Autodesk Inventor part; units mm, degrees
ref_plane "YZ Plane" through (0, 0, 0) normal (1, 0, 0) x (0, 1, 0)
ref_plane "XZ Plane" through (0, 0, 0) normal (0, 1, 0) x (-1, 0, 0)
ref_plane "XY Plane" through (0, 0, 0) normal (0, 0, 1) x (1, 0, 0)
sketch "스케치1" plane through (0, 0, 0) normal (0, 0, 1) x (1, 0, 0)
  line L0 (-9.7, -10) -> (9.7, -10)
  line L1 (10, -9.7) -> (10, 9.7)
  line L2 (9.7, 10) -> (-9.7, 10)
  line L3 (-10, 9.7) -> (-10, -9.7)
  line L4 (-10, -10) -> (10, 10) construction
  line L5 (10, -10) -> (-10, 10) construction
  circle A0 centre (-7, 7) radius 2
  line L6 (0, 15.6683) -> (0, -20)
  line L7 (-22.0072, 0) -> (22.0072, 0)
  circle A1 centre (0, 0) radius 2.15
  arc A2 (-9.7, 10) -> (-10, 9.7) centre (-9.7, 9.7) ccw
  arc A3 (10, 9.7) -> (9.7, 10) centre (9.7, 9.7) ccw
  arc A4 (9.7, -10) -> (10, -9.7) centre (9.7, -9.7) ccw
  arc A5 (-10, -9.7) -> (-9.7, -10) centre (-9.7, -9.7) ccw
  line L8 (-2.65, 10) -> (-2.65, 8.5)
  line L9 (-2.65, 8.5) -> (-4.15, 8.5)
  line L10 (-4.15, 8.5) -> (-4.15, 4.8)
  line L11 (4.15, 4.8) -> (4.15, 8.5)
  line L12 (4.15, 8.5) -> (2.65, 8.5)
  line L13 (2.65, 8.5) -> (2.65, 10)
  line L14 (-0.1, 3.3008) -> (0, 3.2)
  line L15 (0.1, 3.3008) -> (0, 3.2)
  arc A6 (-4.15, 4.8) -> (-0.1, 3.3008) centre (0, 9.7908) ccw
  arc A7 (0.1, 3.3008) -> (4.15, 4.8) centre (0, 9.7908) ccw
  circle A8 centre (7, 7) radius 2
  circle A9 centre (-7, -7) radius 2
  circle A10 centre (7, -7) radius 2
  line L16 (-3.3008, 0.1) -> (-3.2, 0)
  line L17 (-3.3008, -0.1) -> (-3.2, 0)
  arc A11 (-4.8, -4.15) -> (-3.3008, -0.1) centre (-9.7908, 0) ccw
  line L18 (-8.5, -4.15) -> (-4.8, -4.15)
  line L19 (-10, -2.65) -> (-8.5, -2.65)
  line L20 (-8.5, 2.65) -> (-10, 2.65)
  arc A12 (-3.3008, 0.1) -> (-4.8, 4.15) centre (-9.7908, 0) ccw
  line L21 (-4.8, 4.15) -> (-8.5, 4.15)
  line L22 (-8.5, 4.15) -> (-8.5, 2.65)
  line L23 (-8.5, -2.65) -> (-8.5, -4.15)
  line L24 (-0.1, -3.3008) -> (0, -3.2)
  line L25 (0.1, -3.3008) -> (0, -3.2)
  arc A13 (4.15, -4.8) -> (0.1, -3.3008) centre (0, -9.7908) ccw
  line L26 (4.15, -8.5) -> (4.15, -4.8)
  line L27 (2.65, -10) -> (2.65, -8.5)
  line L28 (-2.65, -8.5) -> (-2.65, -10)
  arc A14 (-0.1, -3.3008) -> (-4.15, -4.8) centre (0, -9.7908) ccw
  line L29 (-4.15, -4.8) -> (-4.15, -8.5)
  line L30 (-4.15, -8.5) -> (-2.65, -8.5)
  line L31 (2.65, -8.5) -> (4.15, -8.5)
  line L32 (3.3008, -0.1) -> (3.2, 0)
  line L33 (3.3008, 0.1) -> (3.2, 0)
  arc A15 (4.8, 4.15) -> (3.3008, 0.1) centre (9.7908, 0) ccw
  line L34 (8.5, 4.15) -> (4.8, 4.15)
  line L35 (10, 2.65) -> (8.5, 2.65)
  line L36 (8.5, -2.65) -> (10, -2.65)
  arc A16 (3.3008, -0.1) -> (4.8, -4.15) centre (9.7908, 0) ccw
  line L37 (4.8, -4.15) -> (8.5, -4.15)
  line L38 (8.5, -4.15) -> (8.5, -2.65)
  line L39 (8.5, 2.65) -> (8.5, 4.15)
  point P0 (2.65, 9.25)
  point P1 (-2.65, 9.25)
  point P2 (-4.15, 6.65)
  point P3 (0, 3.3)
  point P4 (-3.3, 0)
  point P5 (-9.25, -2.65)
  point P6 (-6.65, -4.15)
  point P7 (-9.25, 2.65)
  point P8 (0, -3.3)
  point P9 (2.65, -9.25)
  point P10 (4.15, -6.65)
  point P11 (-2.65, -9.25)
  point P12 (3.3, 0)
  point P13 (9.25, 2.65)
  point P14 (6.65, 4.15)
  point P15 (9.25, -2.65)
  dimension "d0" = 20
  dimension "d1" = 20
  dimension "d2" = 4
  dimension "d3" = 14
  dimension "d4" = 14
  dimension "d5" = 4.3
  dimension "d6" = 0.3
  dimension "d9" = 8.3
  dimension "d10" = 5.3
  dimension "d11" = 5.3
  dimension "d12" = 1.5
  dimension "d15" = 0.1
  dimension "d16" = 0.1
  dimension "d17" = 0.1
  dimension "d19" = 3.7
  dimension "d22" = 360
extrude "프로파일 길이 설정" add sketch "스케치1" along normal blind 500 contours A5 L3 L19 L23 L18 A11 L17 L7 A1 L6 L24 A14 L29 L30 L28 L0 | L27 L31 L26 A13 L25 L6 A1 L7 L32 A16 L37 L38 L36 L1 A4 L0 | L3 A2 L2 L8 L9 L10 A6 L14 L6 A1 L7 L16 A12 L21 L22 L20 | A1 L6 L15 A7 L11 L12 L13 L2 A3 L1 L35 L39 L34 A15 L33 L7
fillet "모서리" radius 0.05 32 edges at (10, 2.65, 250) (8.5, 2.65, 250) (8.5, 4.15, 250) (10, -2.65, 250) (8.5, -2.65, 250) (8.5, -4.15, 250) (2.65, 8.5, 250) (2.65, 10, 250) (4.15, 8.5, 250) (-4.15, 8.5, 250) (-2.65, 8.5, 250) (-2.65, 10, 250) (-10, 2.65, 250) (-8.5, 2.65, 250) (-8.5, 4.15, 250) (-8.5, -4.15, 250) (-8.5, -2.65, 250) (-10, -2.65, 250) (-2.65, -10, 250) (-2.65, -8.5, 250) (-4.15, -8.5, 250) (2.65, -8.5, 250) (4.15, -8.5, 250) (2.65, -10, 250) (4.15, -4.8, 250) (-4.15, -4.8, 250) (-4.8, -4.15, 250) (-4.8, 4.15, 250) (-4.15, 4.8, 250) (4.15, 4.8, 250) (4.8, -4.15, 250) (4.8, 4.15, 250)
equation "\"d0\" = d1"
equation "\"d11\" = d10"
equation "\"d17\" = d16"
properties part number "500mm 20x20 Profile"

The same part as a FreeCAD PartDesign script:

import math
import FreeCAD as App
import Part
import Sketcher

V = App.Vector


def edges_at(feature, points):
    """Names of the edges that pass closest to the given points."""
    edges = feature.Shape.Edges
    near = lambda p: min(range(len(edges)), key=lambda i: edges[i].distToShape(Part.Vertex(*p))[0])
    return sorted({f"Edge{near(p) + 1}" for p in points})

doc = App.newDocument("Part")
body = doc.addObject("PartDesign::Body", "Body")

# Sketch on XY plane
sketch1 = body.newObject("Sketcher::SketchObject", "Sketch")
sketch1.AttachmentSupport = (doc.getObject("XY_Plane"), [""])
sketch1.MapMode = "FlatFace"
sketch1.addGeometry(Part.ArcOfCircle(Part.Circle(V(-9.7, -9.7, 0), V(0, 0, 1), 0.3), math.radians(180), math.radians(270)), False)
sketch1.addGeometry(Part.LineSegment(V(-9.7, -10, 0), V(-2.65, -10, 0)), False)
sketch1.addGeometry(Part.LineSegment(V(-2.65, -10, 0), V(-2.65, -8.5, 0)), False)
sketch1.addGeometry(Part.LineSegment(V(-2.65, -8.5, 0), V(-4.15, -8.5, 0)), False)
sketch1.addGeometry(Part.LineSegment(V(-4.15, -8.5, 0), V(-4.15, -4.8, 0)), False)
sketch1.addGeometry(Part.ArcOfCircle(Part.Circle(V(0, -9.7908, 0), V(0, 0, 1), 6.490808), math.radians(90.882762), math.radians(129.74454)), False)
sketch1.addGeometry(Part.LineSegment(V(-0.1, -3.3008, 0), V(0, -3.2, 0)), False)
sketch1.addGeometry(Part.LineSegment(V(0, -3.2, 0), V(0.1, -3.3008, 0)), False)
sketch1.addGeometry(Part.ArcOfCircle(Part.Circle(V(0, -9.7908, 0), V(0, 0, 1), 6.49077), math.radians(50.25546), math.radians(89.117238)), False)
sketch1.addGeometry(Part.LineSegment(V(4.15, -4.8, 0), V(4.15, -8.5, 0)), False)
sketch1.addGeometry(Part.LineSegment(V(4.15, -8.5, 0), V(2.65, -8.5, 0)), False)
sketch1.addGeometry(Part.LineSegment(V(2.65, -8.5, 0), V(2.65, -10, 0)), False)
sketch1.addGeometry(Part.LineSegment(V(2.65, -10, 0), V(9.7, -10, 0)), False)
sketch1.addGeometry(Part.ArcOfCircle(Part.Circle(V(9.7, -9.7, 0), V(0, 0, 1), 0.3), math.radians(-90), math.radians(0)), False)
sketch1.addGeometry(Part.LineSegment(V(10, -9.7, 0), V(10, -2.65, 0)), False)
sketch1.addGeometry(Part.LineSegment(V(10, -2.65, 0), V(8.5, -2.65, 0)), False)
sketch1.addGeometry(Part.LineSegment(V(8.5, -2.65, 0), V(8.5, -4.15, 0)), False)
sketch1.addGeometry(Part.LineSegment(V(8.5, -4.15, 0), V(4.8, -4.15, 0)), False)
sketch1.addGeometry(Part.ArcOfCircle(Part.Circle(V(9.7908, 0, 0), V(0, 0, 1), 6.490808), math.radians(-179.117238), math.radians(-140.25546)), False)
sketch1.addGeometry(Part.LineSegment(V(3.3008, -0.1, 0), V(3.2, 0, 0)), False)
sketch1.addGeometry(Part.LineSegment(V(3.2, 0, 0), V(3.3008, 0.1, 0)), False)
sketch1.addGeometry(Part.ArcOfCircle(Part.Circle(V(9.7908, 0, 0), V(0, 0, 1), 6.49077), math.radians(140.25546), math.radians(179.117238)), False)
sketch1.addGeometry(Part.LineSegment(V(4.8, 4.15, 0), V(8.5, 4.15, 0)), False)
sketch1.addGeometry(Part.LineSegment(V(8.5, 4.15, 0), V(8.5, 2.65, 0)), False)
sketch1.addGeometry(Part.LineSegment(V(8.5, 2.65, 0), V(10, 2.65, 0)), False)
sketch1.addGeometry(Part.LineSegment(V(10, 2.65, 0), V(10, 9.7, 0)), False)
sketch1.addGeometry(Part.ArcOfCircle(Part.Circle(V(9.7, 9.7, 0), V(0, 0, 1), 0.3), math.radians(0), math.radians(90)), False)
sketch1.addGeometry(Part.LineSegment(V(9.7, 10, 0), V(2.65, 10, 0)), False)
sketch1.addGeometry(Part.LineSegment(V(2.65, 10, 0), V(2.65, 8.5, 0)), False)
sketch1.addGeometry(Part.LineSegment(V(2.65, 8.5, 0), V(4.15, 8.5, 0)), False)
sketch1.addGeometry(Part.LineSegment(V(4.15, 8.5, 0), V(4.15, 4.8, 0)), False)
sketch1.addGeometry(Part.ArcOfCircle(Part.Circle(V(0, 9.7908, 0), V(0, 0, 1), 6.490808), math.radians(-89.117238), math.radians(-50.25546)), False)
sketch1.addGeometry(Part.LineSegment(V(0.1, 3.3008, 0), V(0, 3.2, 0)), False)
sketch1.addGeometry(Part.LineSegment(V(0, 3.2, 0), V(-0.1, 3.3008, 0)), False)
sketch1.addGeometry(Part.ArcOfCircle(Part.Circle(V(0, 9.7908, 0), V(0, 0, 1), 6.49077), math.radians(-129.74454), math.radians(-90.882762)), False)
sketch1.addGeometry(Part.LineSegment(V(-4.15, 4.8, 0), V(-4.15, 8.5, 0)), False)
sketch1.addGeometry(Part.LineSegment(V(-4.15, 8.5, 0), V(-2.65, 8.5, 0)), False)
sketch1.addGeometry(Part.LineSegment(V(-2.65, 8.5, 0), V(-2.65, 10, 0)), False)
sketch1.addGeometry(Part.LineSegment(V(-2.65, 10, 0), V(-9.7, 10, 0)), False)
sketch1.addGeometry(Part.ArcOfCircle(Part.Circle(V(-9.7, 9.7, 0), V(0, 0, 1), 0.3), math.radians(90), math.radians(180)), False)
sketch1.addGeometry(Part.LineSegment(V(-10, 9.7, 0), V(-10, 2.65, 0)), False)
sketch1.addGeometry(Part.LineSegment(V(-10, 2.65, 0), V(-8.5, 2.65, 0)), False)
sketch1.addGeometry(Part.LineSegment(V(-8.5, 2.65, 0), V(-8.5, 4.15, 0)), False)
sketch1.addGeometry(Part.LineSegment(V(-8.5, 4.15, 0), V(-4.8, 4.15, 0)), False)
sketch1.addGeometry(Part.ArcOfCircle(Part.Circle(V(-9.7908, 0, 0), V(0, 0, 1), 6.490808), math.radians(0.882762), math.radians(39.74454)), False)
sketch1.addGeometry(Part.LineSegment(V(-3.3008, 0.1, 0), V(-3.2, 0, 0)), False)
sketch1.addGeometry(Part.LineSegment(V(-3.2, 0, 0), V(-3.3008, -0.1, 0)), False)
sketch1.addGeometry(Part.ArcOfCircle(Part.Circle(V(-9.7908, 0, 0), V(0, 0, 1), 6.49077), math.radians(-39.74454), math.radians(-0.882762)), False)
sketch1.addGeometry(Part.LineSegment(V(-4.8, -4.15, 0), V(-8.5, -4.15, 0)), False)
sketch1.addGeometry(Part.LineSegment(V(-8.5, -4.15, 0), V(-8.5, -2.65, 0)), False)
sketch1.addGeometry(Part.LineSegment(V(-8.5, -2.65, 0), V(-10, -2.65, 0)), False)
sketch1.addGeometry(Part.LineSegment(V(-10, -2.65, 0), V(-10, -9.7, 0)), False)
sketch1.addGeometry(Part.Circle(V(0, 0, 0), V(0, 0, 1), 2.15), False)
sketch1.addGeometry(Part.Circle(V(-7, -7, 0), V(0, 0, 1), 2), False)
sketch1.addGeometry(Part.Circle(V(-7, 7, 0), V(0, 0, 1), 2), False)
sketch1.addGeometry(Part.Circle(V(7, -7, 0), V(0, 0, 1), 2), False)
sketch1.addGeometry(Part.Circle(V(7, 7, 0), V(0, 0, 1), 2), False)
sketch1.addConstraint(Sketcher.Constraint("Tangent", 0, 2, 1, 1))
sketch1.addConstraint(Sketcher.Constraint("Coincident", 1, 2, 2, 1))
sketch1.addConstraint(Sketcher.Constraint("Coincident", 2, 2, 3, 1))
sketch1.addConstraint(Sketcher.Constraint("Coincident", 3, 2, 4, 1))
sketch1.addConstraint(Sketcher.Constraint("Coincident", 4, 2, 5, 2))
sketch1.addConstraint(Sketcher.Constraint("Coincident", 5, 1, 6, 1))
sketch1.addConstraint(Sketcher.Constraint("Coincident", 6, 2, 7, 1))
sketch1.addConstraint(Sketcher.Constraint("Coincident", 7, 2, 8, 2))
sketch1.addConstraint(Sketcher.Constraint("Coincident", 8, 1, 9, 1))
sketch1.addConstraint(Sketcher.Constraint("Coincident", 9, 2, 10, 1))
sketch1.addConstraint(Sketcher.Constraint("Coincident", 10, 2, 11, 1))
sketch1.addConstraint(Sketcher.Constraint("Coincident", 11, 2, 12, 1))
sketch1.addConstraint(Sketcher.Constraint("Tangent", 12, 2, 13, 1))
sketch1.addConstraint(Sketcher.Constraint("Tangent", 13, 2, 14, 1))
sketch1.addConstraint(Sketcher.Constraint("Coincident", 14, 2, 15, 1))
sketch1.addConstraint(Sketcher.Constraint("Coincident", 15, 2, 16, 1))
sketch1.addConstraint(Sketcher.Constraint("Coincident", 16, 2, 17, 1))
sketch1.addConstraint(Sketcher.Constraint("Coincident", 17, 2, 18, 2))
sketch1.addConstraint(Sketcher.Constraint("Coincident", 18, 1, 19, 1))
sketch1.addConstraint(Sketcher.Constraint("Coincident", 19, 2, 20, 1))
sketch1.addConstraint(Sketcher.Constraint("Coincident", 20, 2, 21, 2))
sketch1.addConstraint(Sketcher.Constraint("Coincident", 21, 1, 22, 1))
sketch1.addConstraint(Sketcher.Constraint("Coincident", 22, 2, 23, 1))
sketch1.addConstraint(Sketcher.Constraint("Coincident", 23, 2, 24, 1))
sketch1.addConstraint(Sketcher.Constraint("Coincident", 24, 2, 25, 1))
sketch1.addConstraint(Sketcher.Constraint("Tangent", 25, 2, 26, 1))
sketch1.addConstraint(Sketcher.Constraint("Tangent", 26, 2, 27, 1))
sketch1.addConstraint(Sketcher.Constraint("Coincident", 27, 2, 28, 1))
sketch1.addConstraint(Sketcher.Constraint("Coincident", 28, 2, 29, 1))
sketch1.addConstraint(Sketcher.Constraint("Coincident", 29, 2, 30, 1))
sketch1.addConstraint(Sketcher.Constraint("Coincident", 30, 2, 31, 2))
sketch1.addConstraint(Sketcher.Constraint("Coincident", 31, 1, 32, 1))
sketch1.addConstraint(Sketcher.Constraint("Coincident", 32, 2, 33, 1))
sketch1.addConstraint(Sketcher.Constraint("Coincident", 33, 2, 34, 2))
sketch1.addConstraint(Sketcher.Constraint("Coincident", 34, 1, 35, 1))
sketch1.addConstraint(Sketcher.Constraint("Coincident", 35, 2, 36, 1))
sketch1.addConstraint(Sketcher.Constraint("Coincident", 36, 2, 37, 1))
sketch1.addConstraint(Sketcher.Constraint("Coincident", 37, 2, 38, 1))
sketch1.addConstraint(Sketcher.Constraint("Tangent", 38, 2, 39, 1))
sketch1.addConstraint(Sketcher.Constraint("Tangent", 39, 2, 40, 1))
sketch1.addConstraint(Sketcher.Constraint("Coincident", 40, 2, 41, 1))
sketch1.addConstraint(Sketcher.Constraint("Coincident", 41, 2, 42, 1))
sketch1.addConstraint(Sketcher.Constraint("Coincident", 42, 2, 43, 1))
sketch1.addConstraint(Sketcher.Constraint("Coincident", 43, 2, 44, 2))
sketch1.addConstraint(Sketcher.Constraint("Coincident", 44, 1, 45, 1))
sketch1.addConstraint(Sketcher.Constraint("Coincident", 45, 2, 46, 1))
sketch1.addConstraint(Sketcher.Constraint("Coincident", 46, 2, 47, 2))
sketch1.addConstraint(Sketcher.Constraint("Coincident", 47, 1, 48, 1))
sketch1.addConstraint(Sketcher.Constraint("Coincident", 48, 2, 49, 1))
sketch1.addConstraint(Sketcher.Constraint("Coincident", 49, 2, 50, 1))
sketch1.addConstraint(Sketcher.Constraint("Coincident", 50, 2, 51, 1))
sketch1.addConstraint(Sketcher.Constraint("Tangent", 51, 2, 0, 1))
sketch1.addConstraint(Sketcher.Constraint("Horizontal", 1))
sketch1.addConstraint(Sketcher.Constraint("Vertical", 2))
sketch1.addConstraint(Sketcher.Constraint("Horizontal", 3))
sketch1.addConstraint(Sketcher.Constraint("Vertical", 4))
sketch1.addConstraint(Sketcher.Constraint("Vertical", 9))
sketch1.addConstraint(Sketcher.Constraint("Horizontal", 10))
sketch1.addConstraint(Sketcher.Constraint("Vertical", 11))
sketch1.addConstraint(Sketcher.Constraint("Horizontal", 12))
sketch1.addConstraint(Sketcher.Constraint("Vertical", 14))
sketch1.addConstraint(Sketcher.Constraint("Horizontal", 15))
sketch1.addConstraint(Sketcher.Constraint("Vertical", 16))
sketch1.addConstraint(Sketcher.Constraint("Horizontal", 17))
sketch1.addConstraint(Sketcher.Constraint("Horizontal", 22))
sketch1.addConstraint(Sketcher.Constraint("Vertical", 23))
sketch1.addConstraint(Sketcher.Constraint("Horizontal", 24))
sketch1.addConstraint(Sketcher.Constraint("Vertical", 25))
sketch1.addConstraint(Sketcher.Constraint("Horizontal", 27))
sketch1.addConstraint(Sketcher.Constraint("Vertical", 28))
sketch1.addConstraint(Sketcher.Constraint("Horizontal", 29))
sketch1.addConstraint(Sketcher.Constraint("Vertical", 30))
sketch1.addConstraint(Sketcher.Constraint("Vertical", 35))
sketch1.addConstraint(Sketcher.Constraint("Horizontal", 36))
sketch1.addConstraint(Sketcher.Constraint("Vertical", 37))
sketch1.addConstraint(Sketcher.Constraint("Horizontal", 38))
sketch1.addConstraint(Sketcher.Constraint("Vertical", 40))
sketch1.addConstraint(Sketcher.Constraint("Horizontal", 41))
sketch1.addConstraint(Sketcher.Constraint("Vertical", 42))
sketch1.addConstraint(Sketcher.Constraint("Horizontal", 43))
sketch1.addConstraint(Sketcher.Constraint("Horizontal", 48))
sketch1.addConstraint(Sketcher.Constraint("Vertical", 49))
sketch1.addConstraint(Sketcher.Constraint("Horizontal", 50))
sketch1.addConstraint(Sketcher.Constraint("Vertical", 51))
sketch1.addConstraint(Sketcher.Constraint("Coincident", 52, 3, -1, 1))
sketch1.addConstraint(Sketcher.Constraint("Coincident", 8, 3, 5, 3))
sketch1.addConstraint(Sketcher.Constraint("Coincident", 21, 3, 18, 3))
sketch1.addConstraint(Sketcher.Constraint("Coincident", 34, 3, 31, 3))
sketch1.addConstraint(Sketcher.Constraint("Coincident", 47, 3, 44, 3))
sketch1.addConstraint(Sketcher.Constraint("Equal", 5, 8))
sketch1.addConstraint(Sketcher.Constraint("Equal", 0, 13))
sketch1.addConstraint(Sketcher.Constraint("Equal", 8, 18))
sketch1.addConstraint(Sketcher.Constraint("Equal", 18, 21))
sketch1.addConstraint(Sketcher.Constraint("Equal", 13, 26))
sketch1.addConstraint(Sketcher.Constraint("Equal", 21, 31))
sketch1.addConstraint(Sketcher.Constraint("Equal", 31, 34))
sketch1.addConstraint(Sketcher.Constraint("Equal", 26, 39))
sketch1.addConstraint(Sketcher.Constraint("Equal", 34, 44))
sketch1.addConstraint(Sketcher.Constraint("Equal", 44, 47))
sketch1.addConstraint(Sketcher.Constraint("Equal", 53, 54))
sketch1.addConstraint(Sketcher.Constraint("Equal", 54, 55))
sketch1.addConstraint(Sketcher.Constraint("Equal", 55, 56))
sketch1.addConstraint(Sketcher.Constraint("Symmetric", 0, 3, 26, 3, -1, 1))
sketch1.addConstraint(Sketcher.Constraint("Symmetric", 5, 3, 31, 3, -1, 1))
sketch1.addConstraint(Sketcher.Constraint("Symmetric", 13, 3, 39, 3, -1, 1))
sketch1.addConstraint(Sketcher.Constraint("Symmetric", 18, 3, 44, 3, -1, 1))
sketch1.addConstraint(Sketcher.Constraint("Symmetric", 54, 3, 55, 3, -1, 1))
sketch1.addConstraint(Sketcher.Constraint("Symmetric", 53, 3, 56, 3, -1, 1))
sketch1.addConstraint(Sketcher.Constraint("Symmetric", 2, 2, 28, 2, -1, 1))
sketch1.addConstraint(Sketcher.Constraint("Symmetric", 6, 2, 32, 2, -1, 1))
sketch1.addConstraint(Sketcher.Constraint("Symmetric", 9, 2, 35, 2, -1, 1))
sketch1.addConstraint(Sketcher.Constraint("Symmetric", 15, 2, 41, 2, -1, 1))
sketch1.addConstraint(Sketcher.Constraint("Symmetric", 19, 2, 45, 2, -1, 1))
sketch1.addConstraint(Sketcher.Constraint("Symmetric", 22, 2, 48, 2, -1, 1))
sketch1.addConstraint(Sketcher.Constraint("Symmetric", 0, 3, 13, 3, -2))
sketch1.addConstraint(Sketcher.Constraint("Symmetric", 53, 3, 55, 3, -2))
sketch1.addConstraint(Sketcher.Constraint("Symmetric", 5, 1, 7, 2, -2))
sketch1.addConstraint(Sketcher.Constraint("Symmetric", 3, 2, 9, 2, -2))
sketch1.addConstraint(Sketcher.Constraint("Symmetric", 23, 2, 41, 2, -2))
sketch1.addConstraint(Sketcher.Constraint("Symmetric", 21, 1, 43, 2, -2))
sketch1.addConstraint(Sketcher.Constraint("PointOnObject", 6, 2, -2))
sketch1.addConstraint(Sketcher.Constraint("PointOnObject", 19, 2, -1))
sketch1.addConstraint(Sketcher.Constraint("Perpendicular", 6, 19))
sketch1.addConstraint(Sketcher.Constraint("Perpendicular", 7, 20))
sketch1.addConstraint(Sketcher.Constraint("Perpendicular", 19, 32))
sketch1.addConstraint(Sketcher.Constraint("Perpendicular", 20, 33))
sketch1.addConstraint(Sketcher.Constraint("Perpendicular", 32, 45))
sketch1.addConstraint(Sketcher.Constraint("Perpendicular", 33, 46))
sketch1.addConstraint(Sketcher.Constraint("Horizontal", 30, 2, 34, 1))
sketch1.addConstraint(Sketcher.Constraint("Horizontal", 17, 2, 47, 1))
sketch1.addConstraint(Sketcher.Constraint("Horizontal", 15, 2, 49, 2))
sketch1.addConstraint(Sketcher.Constraint("Vertical", 11, 2, 27, 2))
sketch1.addConstraint(Sketcher.Constraint("Vertical", 2, 2, 36, 2))
sketch1.addConstraint(Sketcher.Constraint("Equal", 10, 15))
sketch1.addConstraint(Sketcher.Constraint("Equal", 50, 2))
sketch1.addConstraint(Sketcher.Constraint("Equal", 48, 4))
sketch1.addConstraint(Sketcher.Constraint("Equal", 38, 14))
sketch1.addConstraint(Sketcher.Constraint("Equal", 11, 16))
sketch1.addConstraint(Sketcher.Constraint("Equal", 7, 19))
sketch1.addConstraint(Sketcher.Constraint("Diameter", 53, 4.0))
sketch1.addConstraint(Sketcher.Constraint("Diameter", 52, 4.3))
sketch1.addConstraint(Sketcher.Constraint("Radius", 0, 0.3))
sketch1.addConstraint(Sketcher.Constraint("DistanceX", 3, 2, 3, 1, 1.5))
sketch1.addConstraint(Sketcher.Constraint("DistanceX", 17, 2, 17, 1, 3.7))
sketch1.addConstraint(Sketcher.Constraint("DistanceX", 5, 1, -1, 1, 0.1))
sketch1.addConstraint(Sketcher.Constraint("DistanceX", 53, 3, -1, 1, 7.0))
sketch1.addConstraint(Sketcher.Constraint("DistanceY", 53, 3, -1, 1, 7.0))
sketch1.addConstraint(Sketcher.Constraint("DistanceY", 0, 2, -1, 1, 10.0))
sketch1.addConstraint(Sketcher.Constraint("DistanceX", -1, 1, 13, 2, 10.0))
sketch1.addConstraint(Sketcher.Constraint("DistanceX", 1, 1, 1, 2, 7.05))
sketch1.addConstraint(Sketcher.Constraint("DistanceY", 6, 2, -1, 1, 3.2))
sketch1.addConstraint(Sketcher.Constraint("Radius", 5, 6.4908))
pad1 = body.newObject("PartDesign::Pad", "Pad")
pad1.Profile = sketch1
pad1.Length = 500
doc.recompute()

fillet = body.newObject("PartDesign::Fillet", "Fillet")
fillet.Base = (pad1, edges_at(pad1, [
    (10, 2.65, 250),
    (8.5, 2.65, 250),
    (8.5, 4.15, 250),
    (10, -2.65, 250),
    (8.5, -2.65, 250),
    (8.5, -4.15, 250),
    (2.65, 8.5, 250),
    (2.65, 10, 250),
    (4.15, 8.5, 250),
    (-4.15, 8.5, 250),
    (-2.65, 8.5, 250),
    (-2.65, 10, 250),
    (-10, 2.65, 250),
    (-8.5, 2.65, 250),
    (-8.5, 4.15, 250),
    (-8.5, -4.15, 250),
    (-8.5, -2.65, 250),
    (-10, -2.65, 250),
    (-2.65, -10, 250),
    (-2.65, -8.5, 250),
    (-4.15, -8.5, 250),
    (2.65, -8.5, 250),
    (4.15, -8.5, 250),
    (2.65, -10, 250),
    (4.15, -4.8, 250),
    (-4.15, -4.8, 250),
    (-4.8, -4.15, 250),
    (-4.8, 4.15, 250),
    (-4.15, 4.8, 250),
    (4.15, 4.8, 250),
    (4.8, -4.15, 250),
    (4.8, 4.15, 250),
]))
fillet.Radius = 0.05

doc.recompute()
